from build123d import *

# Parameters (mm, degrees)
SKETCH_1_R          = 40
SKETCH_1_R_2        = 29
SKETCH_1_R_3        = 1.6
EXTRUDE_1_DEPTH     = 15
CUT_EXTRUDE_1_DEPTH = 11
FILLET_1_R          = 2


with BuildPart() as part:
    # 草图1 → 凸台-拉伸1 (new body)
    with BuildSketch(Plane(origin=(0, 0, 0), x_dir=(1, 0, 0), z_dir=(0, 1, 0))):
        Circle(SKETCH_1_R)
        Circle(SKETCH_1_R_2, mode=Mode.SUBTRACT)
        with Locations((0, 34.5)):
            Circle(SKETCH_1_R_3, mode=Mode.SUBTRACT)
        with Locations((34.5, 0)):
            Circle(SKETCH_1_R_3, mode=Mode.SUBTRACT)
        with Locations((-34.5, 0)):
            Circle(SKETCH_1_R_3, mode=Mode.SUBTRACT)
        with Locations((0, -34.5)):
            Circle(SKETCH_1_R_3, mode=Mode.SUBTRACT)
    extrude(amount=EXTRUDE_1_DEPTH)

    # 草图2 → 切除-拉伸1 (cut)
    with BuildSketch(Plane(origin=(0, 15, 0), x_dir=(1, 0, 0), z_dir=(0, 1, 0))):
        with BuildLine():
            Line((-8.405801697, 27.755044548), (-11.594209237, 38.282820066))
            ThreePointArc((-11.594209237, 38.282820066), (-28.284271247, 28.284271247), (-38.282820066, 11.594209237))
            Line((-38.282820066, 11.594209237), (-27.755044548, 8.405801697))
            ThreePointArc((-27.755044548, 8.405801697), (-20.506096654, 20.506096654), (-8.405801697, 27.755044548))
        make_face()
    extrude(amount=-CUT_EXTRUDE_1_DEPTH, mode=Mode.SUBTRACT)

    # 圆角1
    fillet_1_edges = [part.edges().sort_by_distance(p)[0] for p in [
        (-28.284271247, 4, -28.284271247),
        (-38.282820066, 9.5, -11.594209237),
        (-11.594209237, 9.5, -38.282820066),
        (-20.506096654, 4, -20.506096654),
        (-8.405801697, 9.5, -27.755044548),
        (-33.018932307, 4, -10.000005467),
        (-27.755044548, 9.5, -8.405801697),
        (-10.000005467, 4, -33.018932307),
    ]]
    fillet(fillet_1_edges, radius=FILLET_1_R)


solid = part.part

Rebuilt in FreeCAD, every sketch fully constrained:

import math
import FreeCAD as App
import Part
import Sketcher

V = App.Vector
Q = App.Units.Quantity


def edges_at(feature, points):
    """Names of the edges that pass closest to the given points."""
    edges = feature.Shape.Edges
    near = lambda p: min(range(len(edges)), key=lambda i: edges[i].distToShape(Part.Vertex(*p))[0])
    return sorted({f"Edge{near(p) + 1}" for p in points})

doc = App.newDocument("Part")
body = doc.addObject("PartDesign::Body", "Body")

sketch1 = body.newObject("Sketcher::SketchObject", "Sketch")
sketch1.AttachmentSupport = (doc.getObject("XZ_Plane"), [""])
sketch1.MapMode = "FlatFace"
sketch1.addGeometry([
    Part.Circle(V(0, 0, 0), V(0, 0, 1), 40),
    Part.Circle(V(0, 34.5, 0), V(0, 0, 1), 1.6),
    Part.Circle(V(0, 0, 0), V(0, 0, 1), 29),
    Part.Circle(V(-34.5, 0, 0), V(0, 0, 1), 1.6),
    Part.Circle(V(34.5, 0, 0), V(0, 0, 1), 1.6),
    Part.Circle(V(0, -34.5, 0), V(0, 0, 1), 1.6),
], False)
sketch1.addConstraint([
    Sketcher.Constraint("Coincident", 0, 3, -1, 1),
    Sketcher.Constraint("Coincident", 2, 3, -1, 1),
    Sketcher.Constraint("Equal", 1, 3),
    Sketcher.Constraint("Equal", 3, 4),
    Sketcher.Constraint("Equal", 4, 5),
    Sketcher.Constraint("Symmetric", 3, 3, 4, 3, -1, 1),
    Sketcher.Constraint("Symmetric", 1, 3, 5, 3, -1, 1),
    Sketcher.Constraint("PointOnObject", 1, 3, -2),
    Sketcher.Constraint("PointOnObject", 3, 3, -1),
    Sketcher.Constraint("Diameter", 0, Q("80 mm")),
    Sketcher.Constraint("Diameter", 2, Q("58 mm")),
    Sketcher.Constraint("Diameter", 1, Q("3.2 mm")),
    Sketcher.Constraint("DistanceX", 3, 3, 4, 3, Q("69 mm")),
    Sketcher.Constraint("DistanceY", 5, 3, 1, 3, Q("69 mm")),
])
pad1 = body.newObject("PartDesign::Pad", "Pad")
pad1.Profile = sketch1
pad1.Length = 15
pad1.Reversed = True

sketch2 = body.newObject("Sketcher::SketchObject", "Sketch001")
sketch2.AttachmentSupport = (doc.getObject("XZ_Plane"), [""])
sketch2.MapMode = "FlatFace"
sketch2.AttachmentOffset = App.Placement(V(0, 0, -15), App.Rotation())
sketch2.addGeometry([
    Part.LineSegment(V(-8.405802, -27.755045, 0), V(-11.594209, -38.28282, 0)),
    Part.ArcOfCircle(Part.Circle(V(0, 0, 0), V(0, 0, 1), 40), math.radians(-163.150711), math.radians(-106.849289)),
    Part.LineSegment(V(-38.28282, -11.594209, 0), V(-27.755045, -8.405802, 0)),
    Part.ArcOfCircle(Part.Circle(V(0, 0, 0), V(0, 0, 1), 29), math.radians(-163.150711), math.radians(-106.849289)),
], False)
sketch2.addConstraint([
    Sketcher.Constraint("Coincident", 0, 2, 1, 2),
    Sketcher.Constraint("Coincident", 1, 1, 2, 1),
    Sketcher.Constraint("Coincident", 2, 2, 3, 1),
    Sketcher.Constraint("Coincident", 3, 2, 0, 1),
    Sketcher.Constraint("Coincident", 1, 3, -1, 1),
    Sketcher.Constraint("Coincident", 3, 3, -1, 1),
    Sketcher.Constraint("Radius", 1, Q("40 mm")),
    Sketcher.Constraint("Radius", 3, Q("29 mm")),
    Sketcher.Constraint("DistanceY", 2, 2, -1, 1, Q("8.405802 mm")),
    Sketcher.Constraint("DistanceX", 3, 2, -1, 1, Q("8.405802 mm")),
    Sketcher.Constraint("DistanceX", 0, 2, -1, 1, Q("11.594209 mm")),
    Sketcher.Constraint("DistanceX", 1, 1, -1, 1, Q("38.28282 mm")),
])
pocket1 = body.newObject("PartDesign::Pocket", "Pocket")
pocket1.Profile = sketch2
pocket1.Length = 11
pocket1.Reversed = True
doc.recompute()

fillet = body.newObject("PartDesign::Fillet", "Fillet")
fillet.Base = (pocket1, edges_at(pocket1, [
    (-28.284, 4, -28.284),
    (-38.283, 9.5, -11.594),
    (-11.594, 9.5, -38.283),
    (-20.506, 4, -20.506),
    (-8.406, 9.5, -27.755),
    (-33.019, 4, -10),
    (-27.755, 9.5, -8.406),
    (-10, 4, -33.019),
]))
fillet.Radius = 2

doc.recompute()
